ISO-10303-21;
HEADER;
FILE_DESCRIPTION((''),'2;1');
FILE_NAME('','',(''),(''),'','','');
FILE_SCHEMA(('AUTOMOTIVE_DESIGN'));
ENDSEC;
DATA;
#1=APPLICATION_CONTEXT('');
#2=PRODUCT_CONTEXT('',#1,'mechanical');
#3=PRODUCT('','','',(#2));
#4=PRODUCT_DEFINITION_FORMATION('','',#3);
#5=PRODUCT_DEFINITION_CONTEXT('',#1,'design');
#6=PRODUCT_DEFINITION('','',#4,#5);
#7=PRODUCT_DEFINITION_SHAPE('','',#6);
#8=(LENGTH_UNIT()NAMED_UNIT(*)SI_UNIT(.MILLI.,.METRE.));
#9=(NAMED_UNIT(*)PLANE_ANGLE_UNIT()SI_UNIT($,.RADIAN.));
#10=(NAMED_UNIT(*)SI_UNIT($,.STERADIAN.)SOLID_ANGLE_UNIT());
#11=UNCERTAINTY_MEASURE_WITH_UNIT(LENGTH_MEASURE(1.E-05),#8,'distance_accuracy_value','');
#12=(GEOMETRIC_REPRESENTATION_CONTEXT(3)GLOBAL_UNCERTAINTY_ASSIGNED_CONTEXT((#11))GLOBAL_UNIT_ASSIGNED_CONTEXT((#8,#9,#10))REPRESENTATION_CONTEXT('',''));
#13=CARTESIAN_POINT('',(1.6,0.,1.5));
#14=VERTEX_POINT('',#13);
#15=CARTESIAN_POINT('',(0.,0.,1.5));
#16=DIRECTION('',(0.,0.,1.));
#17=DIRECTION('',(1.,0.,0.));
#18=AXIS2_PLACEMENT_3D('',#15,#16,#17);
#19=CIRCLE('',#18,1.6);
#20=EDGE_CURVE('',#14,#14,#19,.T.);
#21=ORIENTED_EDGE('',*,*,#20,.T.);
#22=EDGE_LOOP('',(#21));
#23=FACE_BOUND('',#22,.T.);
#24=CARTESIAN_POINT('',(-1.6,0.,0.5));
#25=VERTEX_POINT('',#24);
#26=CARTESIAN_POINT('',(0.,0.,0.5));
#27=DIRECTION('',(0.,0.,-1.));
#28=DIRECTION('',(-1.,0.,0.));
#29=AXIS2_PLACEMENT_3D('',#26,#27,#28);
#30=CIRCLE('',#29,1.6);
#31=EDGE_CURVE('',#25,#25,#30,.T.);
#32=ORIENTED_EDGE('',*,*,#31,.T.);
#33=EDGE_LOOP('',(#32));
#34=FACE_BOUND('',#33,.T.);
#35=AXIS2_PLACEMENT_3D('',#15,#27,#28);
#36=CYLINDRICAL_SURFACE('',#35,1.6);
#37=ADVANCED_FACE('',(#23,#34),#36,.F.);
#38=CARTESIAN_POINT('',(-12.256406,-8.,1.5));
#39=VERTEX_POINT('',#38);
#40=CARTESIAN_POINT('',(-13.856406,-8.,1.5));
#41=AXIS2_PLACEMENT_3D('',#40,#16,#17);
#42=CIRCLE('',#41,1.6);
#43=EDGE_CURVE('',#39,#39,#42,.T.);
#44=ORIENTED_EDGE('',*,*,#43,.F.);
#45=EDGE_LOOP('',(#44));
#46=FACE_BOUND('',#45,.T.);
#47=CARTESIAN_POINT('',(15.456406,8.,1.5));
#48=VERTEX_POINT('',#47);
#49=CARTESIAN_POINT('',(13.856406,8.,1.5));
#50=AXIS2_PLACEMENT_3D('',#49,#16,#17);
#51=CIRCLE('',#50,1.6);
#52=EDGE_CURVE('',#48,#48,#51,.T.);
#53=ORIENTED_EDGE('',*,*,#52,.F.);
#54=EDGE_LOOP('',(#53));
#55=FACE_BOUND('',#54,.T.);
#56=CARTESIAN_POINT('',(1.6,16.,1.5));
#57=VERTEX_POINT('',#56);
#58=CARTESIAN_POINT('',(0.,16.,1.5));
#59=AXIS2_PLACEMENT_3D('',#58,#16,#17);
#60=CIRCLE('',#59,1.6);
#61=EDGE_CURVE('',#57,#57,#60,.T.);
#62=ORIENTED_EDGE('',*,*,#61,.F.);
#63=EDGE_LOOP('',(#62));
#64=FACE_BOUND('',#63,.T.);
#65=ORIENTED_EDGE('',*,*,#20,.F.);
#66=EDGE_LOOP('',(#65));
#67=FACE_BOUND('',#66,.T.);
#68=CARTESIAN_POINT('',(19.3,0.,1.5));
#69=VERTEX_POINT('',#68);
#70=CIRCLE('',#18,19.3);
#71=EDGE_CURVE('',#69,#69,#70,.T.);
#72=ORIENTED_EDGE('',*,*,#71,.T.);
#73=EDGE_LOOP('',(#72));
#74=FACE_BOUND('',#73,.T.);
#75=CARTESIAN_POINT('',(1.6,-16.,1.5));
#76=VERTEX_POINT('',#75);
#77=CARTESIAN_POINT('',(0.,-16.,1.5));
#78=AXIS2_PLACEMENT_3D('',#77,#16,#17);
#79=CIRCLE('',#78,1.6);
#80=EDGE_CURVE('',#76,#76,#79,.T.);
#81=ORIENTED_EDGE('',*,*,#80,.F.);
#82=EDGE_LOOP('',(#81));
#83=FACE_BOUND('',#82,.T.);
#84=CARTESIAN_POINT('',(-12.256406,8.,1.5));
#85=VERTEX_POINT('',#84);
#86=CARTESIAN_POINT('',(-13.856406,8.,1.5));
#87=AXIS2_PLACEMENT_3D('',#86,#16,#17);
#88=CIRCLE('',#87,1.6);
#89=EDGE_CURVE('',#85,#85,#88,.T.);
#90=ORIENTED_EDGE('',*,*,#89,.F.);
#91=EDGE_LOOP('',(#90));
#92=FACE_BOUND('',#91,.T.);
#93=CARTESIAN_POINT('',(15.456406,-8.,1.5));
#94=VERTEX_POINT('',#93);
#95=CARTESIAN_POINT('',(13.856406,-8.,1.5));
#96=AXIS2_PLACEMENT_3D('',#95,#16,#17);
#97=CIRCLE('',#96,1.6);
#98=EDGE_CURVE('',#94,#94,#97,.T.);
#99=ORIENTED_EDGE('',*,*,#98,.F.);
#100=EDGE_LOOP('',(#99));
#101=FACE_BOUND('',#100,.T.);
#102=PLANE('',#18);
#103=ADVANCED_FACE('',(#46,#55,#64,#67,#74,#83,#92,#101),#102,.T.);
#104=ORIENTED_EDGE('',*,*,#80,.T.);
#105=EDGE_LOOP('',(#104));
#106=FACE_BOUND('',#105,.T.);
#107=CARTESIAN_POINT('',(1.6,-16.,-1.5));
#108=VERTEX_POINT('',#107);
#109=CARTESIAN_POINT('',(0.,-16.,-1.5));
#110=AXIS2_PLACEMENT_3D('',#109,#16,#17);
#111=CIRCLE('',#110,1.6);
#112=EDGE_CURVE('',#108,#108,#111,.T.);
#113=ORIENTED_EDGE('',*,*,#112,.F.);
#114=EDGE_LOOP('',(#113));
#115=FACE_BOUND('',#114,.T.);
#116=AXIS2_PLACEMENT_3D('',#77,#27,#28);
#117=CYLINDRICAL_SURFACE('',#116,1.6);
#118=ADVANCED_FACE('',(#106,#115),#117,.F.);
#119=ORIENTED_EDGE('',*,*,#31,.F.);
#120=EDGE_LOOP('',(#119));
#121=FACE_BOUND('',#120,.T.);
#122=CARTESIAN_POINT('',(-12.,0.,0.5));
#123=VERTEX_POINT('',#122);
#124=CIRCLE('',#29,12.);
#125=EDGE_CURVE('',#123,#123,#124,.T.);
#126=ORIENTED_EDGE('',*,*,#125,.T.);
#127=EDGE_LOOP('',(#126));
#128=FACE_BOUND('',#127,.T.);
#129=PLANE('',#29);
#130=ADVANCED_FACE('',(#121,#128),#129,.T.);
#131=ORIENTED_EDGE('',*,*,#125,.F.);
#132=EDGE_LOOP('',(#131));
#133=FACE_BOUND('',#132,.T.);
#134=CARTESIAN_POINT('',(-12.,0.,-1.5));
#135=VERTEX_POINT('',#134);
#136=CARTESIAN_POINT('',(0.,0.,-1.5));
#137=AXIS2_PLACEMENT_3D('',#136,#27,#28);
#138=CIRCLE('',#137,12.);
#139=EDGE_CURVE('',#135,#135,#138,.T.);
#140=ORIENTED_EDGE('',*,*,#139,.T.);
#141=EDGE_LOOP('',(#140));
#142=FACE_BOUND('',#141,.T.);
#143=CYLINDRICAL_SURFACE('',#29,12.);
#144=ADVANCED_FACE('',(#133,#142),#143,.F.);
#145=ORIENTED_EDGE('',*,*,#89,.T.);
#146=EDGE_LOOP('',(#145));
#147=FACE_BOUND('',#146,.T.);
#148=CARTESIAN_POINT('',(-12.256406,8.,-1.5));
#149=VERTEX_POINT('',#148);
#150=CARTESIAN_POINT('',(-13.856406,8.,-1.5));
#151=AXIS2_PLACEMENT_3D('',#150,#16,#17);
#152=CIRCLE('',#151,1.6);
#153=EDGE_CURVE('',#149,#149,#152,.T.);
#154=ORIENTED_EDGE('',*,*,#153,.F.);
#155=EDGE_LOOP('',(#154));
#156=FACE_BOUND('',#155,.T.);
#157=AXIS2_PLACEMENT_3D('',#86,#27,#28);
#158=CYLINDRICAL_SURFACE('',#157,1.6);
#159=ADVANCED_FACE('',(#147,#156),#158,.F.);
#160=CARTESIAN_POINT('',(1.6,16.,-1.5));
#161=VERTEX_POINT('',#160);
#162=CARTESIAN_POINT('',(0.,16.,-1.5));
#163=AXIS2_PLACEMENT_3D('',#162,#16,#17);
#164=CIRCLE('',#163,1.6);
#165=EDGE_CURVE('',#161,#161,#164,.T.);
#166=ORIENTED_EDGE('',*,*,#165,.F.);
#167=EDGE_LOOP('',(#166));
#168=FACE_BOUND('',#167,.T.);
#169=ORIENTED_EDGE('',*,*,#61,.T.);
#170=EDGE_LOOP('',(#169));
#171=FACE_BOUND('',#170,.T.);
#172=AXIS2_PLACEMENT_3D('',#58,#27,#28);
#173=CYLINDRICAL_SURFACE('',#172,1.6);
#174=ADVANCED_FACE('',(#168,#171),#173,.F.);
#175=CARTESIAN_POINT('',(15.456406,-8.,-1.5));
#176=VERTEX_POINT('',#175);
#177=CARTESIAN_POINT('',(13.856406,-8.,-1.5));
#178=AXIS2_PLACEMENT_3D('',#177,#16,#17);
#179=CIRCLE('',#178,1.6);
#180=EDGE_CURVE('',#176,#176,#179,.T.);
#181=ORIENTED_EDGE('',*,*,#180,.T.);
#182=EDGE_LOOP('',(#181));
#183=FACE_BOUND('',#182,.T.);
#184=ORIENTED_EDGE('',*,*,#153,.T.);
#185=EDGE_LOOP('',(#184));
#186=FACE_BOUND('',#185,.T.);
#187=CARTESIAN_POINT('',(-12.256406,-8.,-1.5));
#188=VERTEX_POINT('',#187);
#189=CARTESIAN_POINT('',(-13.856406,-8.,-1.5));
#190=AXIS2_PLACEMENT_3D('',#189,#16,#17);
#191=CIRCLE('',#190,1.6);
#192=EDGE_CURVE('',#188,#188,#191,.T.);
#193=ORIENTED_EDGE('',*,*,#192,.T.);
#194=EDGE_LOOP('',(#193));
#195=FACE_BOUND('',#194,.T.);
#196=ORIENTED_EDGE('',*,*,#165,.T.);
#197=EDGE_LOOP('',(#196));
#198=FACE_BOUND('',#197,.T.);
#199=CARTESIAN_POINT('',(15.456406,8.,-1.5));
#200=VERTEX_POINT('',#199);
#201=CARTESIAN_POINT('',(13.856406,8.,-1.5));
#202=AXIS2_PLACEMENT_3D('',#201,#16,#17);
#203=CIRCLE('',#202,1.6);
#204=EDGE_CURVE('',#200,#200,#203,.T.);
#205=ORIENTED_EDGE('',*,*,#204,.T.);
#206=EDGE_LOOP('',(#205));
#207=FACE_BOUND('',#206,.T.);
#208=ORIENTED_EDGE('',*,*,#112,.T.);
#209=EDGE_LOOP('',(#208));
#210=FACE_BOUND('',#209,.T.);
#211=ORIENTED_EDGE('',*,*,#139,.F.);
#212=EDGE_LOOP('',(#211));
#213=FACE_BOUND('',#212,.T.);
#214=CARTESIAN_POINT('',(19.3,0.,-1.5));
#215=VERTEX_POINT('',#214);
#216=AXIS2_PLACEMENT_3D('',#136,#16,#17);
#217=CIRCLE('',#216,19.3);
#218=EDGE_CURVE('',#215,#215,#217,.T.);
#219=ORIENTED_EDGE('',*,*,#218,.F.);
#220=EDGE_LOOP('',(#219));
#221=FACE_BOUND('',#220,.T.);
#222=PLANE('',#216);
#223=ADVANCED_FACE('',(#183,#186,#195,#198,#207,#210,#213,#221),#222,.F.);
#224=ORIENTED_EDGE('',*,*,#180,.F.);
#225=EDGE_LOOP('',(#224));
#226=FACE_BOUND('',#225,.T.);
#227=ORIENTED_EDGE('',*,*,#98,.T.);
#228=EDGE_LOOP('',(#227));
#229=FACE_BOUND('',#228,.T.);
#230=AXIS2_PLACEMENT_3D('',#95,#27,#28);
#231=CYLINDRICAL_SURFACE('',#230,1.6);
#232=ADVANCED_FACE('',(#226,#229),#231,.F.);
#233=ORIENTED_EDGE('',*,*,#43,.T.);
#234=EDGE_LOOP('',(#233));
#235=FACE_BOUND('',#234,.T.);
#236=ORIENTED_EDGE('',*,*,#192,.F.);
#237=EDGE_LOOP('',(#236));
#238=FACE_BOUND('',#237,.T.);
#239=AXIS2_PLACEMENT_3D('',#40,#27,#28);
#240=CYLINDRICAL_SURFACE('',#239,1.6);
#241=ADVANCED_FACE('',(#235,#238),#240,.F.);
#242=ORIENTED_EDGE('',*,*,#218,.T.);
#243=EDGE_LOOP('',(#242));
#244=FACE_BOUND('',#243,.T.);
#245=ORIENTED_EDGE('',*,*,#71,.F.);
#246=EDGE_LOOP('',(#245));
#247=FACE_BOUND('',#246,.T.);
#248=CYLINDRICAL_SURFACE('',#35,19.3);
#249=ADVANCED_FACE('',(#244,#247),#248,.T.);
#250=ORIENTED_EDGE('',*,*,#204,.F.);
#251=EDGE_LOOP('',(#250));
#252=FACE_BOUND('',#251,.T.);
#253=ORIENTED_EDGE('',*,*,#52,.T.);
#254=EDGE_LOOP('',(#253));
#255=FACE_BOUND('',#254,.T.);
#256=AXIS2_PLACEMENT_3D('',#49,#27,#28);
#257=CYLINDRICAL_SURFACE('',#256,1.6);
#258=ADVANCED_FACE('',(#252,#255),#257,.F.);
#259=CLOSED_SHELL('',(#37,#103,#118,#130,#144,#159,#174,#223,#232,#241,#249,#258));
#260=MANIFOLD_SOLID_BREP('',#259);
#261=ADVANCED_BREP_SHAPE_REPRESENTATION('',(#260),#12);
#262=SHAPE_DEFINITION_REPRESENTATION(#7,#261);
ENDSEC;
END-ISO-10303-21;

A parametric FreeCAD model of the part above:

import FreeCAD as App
import Part
import Sketcher
from FreeCAD import Vector
Q = App.Units.Quantity

doc = App.newDocument("Part")
body = doc.addObject("PartDesign::Body", "Body")

# Sketch on XY plane
sketch1 = doc.addObject("Sketcher::SketchObject", "Sketch")
body.addObject(sketch1)
sketch1.AttachmentSupport = (doc.XY_Plane, [""])
sketch1.MapMode = "FlatFace"
sketch1.addGeometry([
    Part.Circle(Vector(0, 0, 0), Vector(0, 0, 1), 19.3),  # 0
    Part.Circle(Vector(-13.9, -8, 0), Vector(0, 0, 1), 1.6),  # 1
    Part.Circle(Vector(0, -16, 0), Vector(0, 0, 1), 1.6),  # 2
    Part.Circle(Vector(13.9, -8, 0), Vector(0, 0, 1), 1.6),  # 3
    Part.Circle(Vector(-13.9, 8, 0), Vector(0, 0, 1), 1.6),  # 4
    Part.Circle(Vector(0, 0, 0), Vector(0, 0, 1), 1.6),  # 5
    Part.Circle(Vector(13.9, 8, 0), Vector(0, 0, 1), 1.6),  # 6
    Part.Circle(Vector(0, 16, 0), Vector(0, 0, 1), 1.6),  # 7
], False)
sketch1.addConstraint([
    Sketcher.Constraint("Coincident", 0, 3, -1, 1),
    Sketcher.Constraint("Coincident", 5, 3, -1, 1),
    Sketcher.Constraint("Equal", 1, 2),
    Sketcher.Constraint("Equal", 2, 3),
    Sketcher.Constraint("Equal", 3, 4),
    Sketcher.Constraint("Equal", 4, 5),
    Sketcher.Constraint("Equal", 5, 6),
    Sketcher.Constraint("Equal", 6, 7),
    Sketcher.Constraint("Symmetric", 3, 3, 4, 3, -1, 1),
    Sketcher.Constraint("Symmetric", 1, 3, 6, 3, -1, 1),
    Sketcher.Constraint("Symmetric", 2, 3, 7, 3, -1, 1),
    Sketcher.Constraint("Symmetric", 1, 3, 3, 3, -2),
    Sketcher.Constraint("PointOnObject", 2, 3, -2),
    Sketcher.Constraint("Diameter", 0, Q("38.6 mm")),
    Sketcher.Constraint("Diameter", 1, Q("3.2 mm")),
    Sketcher.Constraint("DistanceY", 1, 3, -1, 1, Q("8 mm")),
    Sketcher.Constraint("DistanceY", 2, 3, -1, 1, Q("16 mm")),
    Sketcher.Constraint("DistanceX", 1, 3, -1, 1, Q("13.856406 mm")),
])
pad1 = doc.addObject("PartDesign::Pad", "Pad")
body.addObject(pad1)
pad1.Profile = sketch1
pad1.Length = 3
pad1.Midplane = True

# Sketch on XY plane
sketch2 = doc.addObject("Sketcher::SketchObject", "Sketch001")
body.addObject(sketch2)
sketch2.AttachmentSupport = (doc.XY_Plane, [""])
sketch2.MapMode = "FlatFace"
sketch2.AttachmentOffset = App.Placement(Vector(0, 0, -1.5), App.Rotation())
sketch2.addGeometry([
    Part.Circle(Vector(0, 0, 0), Vector(0, 0, 1), 12),
    Part.Circle(Vector(0, 0, 0), Vector(0, 0, 1), 1.6),
], False)
sketch2.addConstraint([
    Sketcher.Constraint("Coincident", 0, 3, -1, 1),
    Sketcher.Constraint("Coincident", 1, 3, -1, 1),
    Sketcher.Constraint("Diameter", 0, Q("24 mm")),
    Sketcher.Constraint("Diameter", 1, Q("3.2 mm")),
])
pocket1 = doc.addObject("PartDesign::Pocket", "Pocket")
body.addObject(pocket1)
pocket1.Profile = sketch2
pocket1.Length = 2
pocket1.Reversed = True

doc.recompute()
